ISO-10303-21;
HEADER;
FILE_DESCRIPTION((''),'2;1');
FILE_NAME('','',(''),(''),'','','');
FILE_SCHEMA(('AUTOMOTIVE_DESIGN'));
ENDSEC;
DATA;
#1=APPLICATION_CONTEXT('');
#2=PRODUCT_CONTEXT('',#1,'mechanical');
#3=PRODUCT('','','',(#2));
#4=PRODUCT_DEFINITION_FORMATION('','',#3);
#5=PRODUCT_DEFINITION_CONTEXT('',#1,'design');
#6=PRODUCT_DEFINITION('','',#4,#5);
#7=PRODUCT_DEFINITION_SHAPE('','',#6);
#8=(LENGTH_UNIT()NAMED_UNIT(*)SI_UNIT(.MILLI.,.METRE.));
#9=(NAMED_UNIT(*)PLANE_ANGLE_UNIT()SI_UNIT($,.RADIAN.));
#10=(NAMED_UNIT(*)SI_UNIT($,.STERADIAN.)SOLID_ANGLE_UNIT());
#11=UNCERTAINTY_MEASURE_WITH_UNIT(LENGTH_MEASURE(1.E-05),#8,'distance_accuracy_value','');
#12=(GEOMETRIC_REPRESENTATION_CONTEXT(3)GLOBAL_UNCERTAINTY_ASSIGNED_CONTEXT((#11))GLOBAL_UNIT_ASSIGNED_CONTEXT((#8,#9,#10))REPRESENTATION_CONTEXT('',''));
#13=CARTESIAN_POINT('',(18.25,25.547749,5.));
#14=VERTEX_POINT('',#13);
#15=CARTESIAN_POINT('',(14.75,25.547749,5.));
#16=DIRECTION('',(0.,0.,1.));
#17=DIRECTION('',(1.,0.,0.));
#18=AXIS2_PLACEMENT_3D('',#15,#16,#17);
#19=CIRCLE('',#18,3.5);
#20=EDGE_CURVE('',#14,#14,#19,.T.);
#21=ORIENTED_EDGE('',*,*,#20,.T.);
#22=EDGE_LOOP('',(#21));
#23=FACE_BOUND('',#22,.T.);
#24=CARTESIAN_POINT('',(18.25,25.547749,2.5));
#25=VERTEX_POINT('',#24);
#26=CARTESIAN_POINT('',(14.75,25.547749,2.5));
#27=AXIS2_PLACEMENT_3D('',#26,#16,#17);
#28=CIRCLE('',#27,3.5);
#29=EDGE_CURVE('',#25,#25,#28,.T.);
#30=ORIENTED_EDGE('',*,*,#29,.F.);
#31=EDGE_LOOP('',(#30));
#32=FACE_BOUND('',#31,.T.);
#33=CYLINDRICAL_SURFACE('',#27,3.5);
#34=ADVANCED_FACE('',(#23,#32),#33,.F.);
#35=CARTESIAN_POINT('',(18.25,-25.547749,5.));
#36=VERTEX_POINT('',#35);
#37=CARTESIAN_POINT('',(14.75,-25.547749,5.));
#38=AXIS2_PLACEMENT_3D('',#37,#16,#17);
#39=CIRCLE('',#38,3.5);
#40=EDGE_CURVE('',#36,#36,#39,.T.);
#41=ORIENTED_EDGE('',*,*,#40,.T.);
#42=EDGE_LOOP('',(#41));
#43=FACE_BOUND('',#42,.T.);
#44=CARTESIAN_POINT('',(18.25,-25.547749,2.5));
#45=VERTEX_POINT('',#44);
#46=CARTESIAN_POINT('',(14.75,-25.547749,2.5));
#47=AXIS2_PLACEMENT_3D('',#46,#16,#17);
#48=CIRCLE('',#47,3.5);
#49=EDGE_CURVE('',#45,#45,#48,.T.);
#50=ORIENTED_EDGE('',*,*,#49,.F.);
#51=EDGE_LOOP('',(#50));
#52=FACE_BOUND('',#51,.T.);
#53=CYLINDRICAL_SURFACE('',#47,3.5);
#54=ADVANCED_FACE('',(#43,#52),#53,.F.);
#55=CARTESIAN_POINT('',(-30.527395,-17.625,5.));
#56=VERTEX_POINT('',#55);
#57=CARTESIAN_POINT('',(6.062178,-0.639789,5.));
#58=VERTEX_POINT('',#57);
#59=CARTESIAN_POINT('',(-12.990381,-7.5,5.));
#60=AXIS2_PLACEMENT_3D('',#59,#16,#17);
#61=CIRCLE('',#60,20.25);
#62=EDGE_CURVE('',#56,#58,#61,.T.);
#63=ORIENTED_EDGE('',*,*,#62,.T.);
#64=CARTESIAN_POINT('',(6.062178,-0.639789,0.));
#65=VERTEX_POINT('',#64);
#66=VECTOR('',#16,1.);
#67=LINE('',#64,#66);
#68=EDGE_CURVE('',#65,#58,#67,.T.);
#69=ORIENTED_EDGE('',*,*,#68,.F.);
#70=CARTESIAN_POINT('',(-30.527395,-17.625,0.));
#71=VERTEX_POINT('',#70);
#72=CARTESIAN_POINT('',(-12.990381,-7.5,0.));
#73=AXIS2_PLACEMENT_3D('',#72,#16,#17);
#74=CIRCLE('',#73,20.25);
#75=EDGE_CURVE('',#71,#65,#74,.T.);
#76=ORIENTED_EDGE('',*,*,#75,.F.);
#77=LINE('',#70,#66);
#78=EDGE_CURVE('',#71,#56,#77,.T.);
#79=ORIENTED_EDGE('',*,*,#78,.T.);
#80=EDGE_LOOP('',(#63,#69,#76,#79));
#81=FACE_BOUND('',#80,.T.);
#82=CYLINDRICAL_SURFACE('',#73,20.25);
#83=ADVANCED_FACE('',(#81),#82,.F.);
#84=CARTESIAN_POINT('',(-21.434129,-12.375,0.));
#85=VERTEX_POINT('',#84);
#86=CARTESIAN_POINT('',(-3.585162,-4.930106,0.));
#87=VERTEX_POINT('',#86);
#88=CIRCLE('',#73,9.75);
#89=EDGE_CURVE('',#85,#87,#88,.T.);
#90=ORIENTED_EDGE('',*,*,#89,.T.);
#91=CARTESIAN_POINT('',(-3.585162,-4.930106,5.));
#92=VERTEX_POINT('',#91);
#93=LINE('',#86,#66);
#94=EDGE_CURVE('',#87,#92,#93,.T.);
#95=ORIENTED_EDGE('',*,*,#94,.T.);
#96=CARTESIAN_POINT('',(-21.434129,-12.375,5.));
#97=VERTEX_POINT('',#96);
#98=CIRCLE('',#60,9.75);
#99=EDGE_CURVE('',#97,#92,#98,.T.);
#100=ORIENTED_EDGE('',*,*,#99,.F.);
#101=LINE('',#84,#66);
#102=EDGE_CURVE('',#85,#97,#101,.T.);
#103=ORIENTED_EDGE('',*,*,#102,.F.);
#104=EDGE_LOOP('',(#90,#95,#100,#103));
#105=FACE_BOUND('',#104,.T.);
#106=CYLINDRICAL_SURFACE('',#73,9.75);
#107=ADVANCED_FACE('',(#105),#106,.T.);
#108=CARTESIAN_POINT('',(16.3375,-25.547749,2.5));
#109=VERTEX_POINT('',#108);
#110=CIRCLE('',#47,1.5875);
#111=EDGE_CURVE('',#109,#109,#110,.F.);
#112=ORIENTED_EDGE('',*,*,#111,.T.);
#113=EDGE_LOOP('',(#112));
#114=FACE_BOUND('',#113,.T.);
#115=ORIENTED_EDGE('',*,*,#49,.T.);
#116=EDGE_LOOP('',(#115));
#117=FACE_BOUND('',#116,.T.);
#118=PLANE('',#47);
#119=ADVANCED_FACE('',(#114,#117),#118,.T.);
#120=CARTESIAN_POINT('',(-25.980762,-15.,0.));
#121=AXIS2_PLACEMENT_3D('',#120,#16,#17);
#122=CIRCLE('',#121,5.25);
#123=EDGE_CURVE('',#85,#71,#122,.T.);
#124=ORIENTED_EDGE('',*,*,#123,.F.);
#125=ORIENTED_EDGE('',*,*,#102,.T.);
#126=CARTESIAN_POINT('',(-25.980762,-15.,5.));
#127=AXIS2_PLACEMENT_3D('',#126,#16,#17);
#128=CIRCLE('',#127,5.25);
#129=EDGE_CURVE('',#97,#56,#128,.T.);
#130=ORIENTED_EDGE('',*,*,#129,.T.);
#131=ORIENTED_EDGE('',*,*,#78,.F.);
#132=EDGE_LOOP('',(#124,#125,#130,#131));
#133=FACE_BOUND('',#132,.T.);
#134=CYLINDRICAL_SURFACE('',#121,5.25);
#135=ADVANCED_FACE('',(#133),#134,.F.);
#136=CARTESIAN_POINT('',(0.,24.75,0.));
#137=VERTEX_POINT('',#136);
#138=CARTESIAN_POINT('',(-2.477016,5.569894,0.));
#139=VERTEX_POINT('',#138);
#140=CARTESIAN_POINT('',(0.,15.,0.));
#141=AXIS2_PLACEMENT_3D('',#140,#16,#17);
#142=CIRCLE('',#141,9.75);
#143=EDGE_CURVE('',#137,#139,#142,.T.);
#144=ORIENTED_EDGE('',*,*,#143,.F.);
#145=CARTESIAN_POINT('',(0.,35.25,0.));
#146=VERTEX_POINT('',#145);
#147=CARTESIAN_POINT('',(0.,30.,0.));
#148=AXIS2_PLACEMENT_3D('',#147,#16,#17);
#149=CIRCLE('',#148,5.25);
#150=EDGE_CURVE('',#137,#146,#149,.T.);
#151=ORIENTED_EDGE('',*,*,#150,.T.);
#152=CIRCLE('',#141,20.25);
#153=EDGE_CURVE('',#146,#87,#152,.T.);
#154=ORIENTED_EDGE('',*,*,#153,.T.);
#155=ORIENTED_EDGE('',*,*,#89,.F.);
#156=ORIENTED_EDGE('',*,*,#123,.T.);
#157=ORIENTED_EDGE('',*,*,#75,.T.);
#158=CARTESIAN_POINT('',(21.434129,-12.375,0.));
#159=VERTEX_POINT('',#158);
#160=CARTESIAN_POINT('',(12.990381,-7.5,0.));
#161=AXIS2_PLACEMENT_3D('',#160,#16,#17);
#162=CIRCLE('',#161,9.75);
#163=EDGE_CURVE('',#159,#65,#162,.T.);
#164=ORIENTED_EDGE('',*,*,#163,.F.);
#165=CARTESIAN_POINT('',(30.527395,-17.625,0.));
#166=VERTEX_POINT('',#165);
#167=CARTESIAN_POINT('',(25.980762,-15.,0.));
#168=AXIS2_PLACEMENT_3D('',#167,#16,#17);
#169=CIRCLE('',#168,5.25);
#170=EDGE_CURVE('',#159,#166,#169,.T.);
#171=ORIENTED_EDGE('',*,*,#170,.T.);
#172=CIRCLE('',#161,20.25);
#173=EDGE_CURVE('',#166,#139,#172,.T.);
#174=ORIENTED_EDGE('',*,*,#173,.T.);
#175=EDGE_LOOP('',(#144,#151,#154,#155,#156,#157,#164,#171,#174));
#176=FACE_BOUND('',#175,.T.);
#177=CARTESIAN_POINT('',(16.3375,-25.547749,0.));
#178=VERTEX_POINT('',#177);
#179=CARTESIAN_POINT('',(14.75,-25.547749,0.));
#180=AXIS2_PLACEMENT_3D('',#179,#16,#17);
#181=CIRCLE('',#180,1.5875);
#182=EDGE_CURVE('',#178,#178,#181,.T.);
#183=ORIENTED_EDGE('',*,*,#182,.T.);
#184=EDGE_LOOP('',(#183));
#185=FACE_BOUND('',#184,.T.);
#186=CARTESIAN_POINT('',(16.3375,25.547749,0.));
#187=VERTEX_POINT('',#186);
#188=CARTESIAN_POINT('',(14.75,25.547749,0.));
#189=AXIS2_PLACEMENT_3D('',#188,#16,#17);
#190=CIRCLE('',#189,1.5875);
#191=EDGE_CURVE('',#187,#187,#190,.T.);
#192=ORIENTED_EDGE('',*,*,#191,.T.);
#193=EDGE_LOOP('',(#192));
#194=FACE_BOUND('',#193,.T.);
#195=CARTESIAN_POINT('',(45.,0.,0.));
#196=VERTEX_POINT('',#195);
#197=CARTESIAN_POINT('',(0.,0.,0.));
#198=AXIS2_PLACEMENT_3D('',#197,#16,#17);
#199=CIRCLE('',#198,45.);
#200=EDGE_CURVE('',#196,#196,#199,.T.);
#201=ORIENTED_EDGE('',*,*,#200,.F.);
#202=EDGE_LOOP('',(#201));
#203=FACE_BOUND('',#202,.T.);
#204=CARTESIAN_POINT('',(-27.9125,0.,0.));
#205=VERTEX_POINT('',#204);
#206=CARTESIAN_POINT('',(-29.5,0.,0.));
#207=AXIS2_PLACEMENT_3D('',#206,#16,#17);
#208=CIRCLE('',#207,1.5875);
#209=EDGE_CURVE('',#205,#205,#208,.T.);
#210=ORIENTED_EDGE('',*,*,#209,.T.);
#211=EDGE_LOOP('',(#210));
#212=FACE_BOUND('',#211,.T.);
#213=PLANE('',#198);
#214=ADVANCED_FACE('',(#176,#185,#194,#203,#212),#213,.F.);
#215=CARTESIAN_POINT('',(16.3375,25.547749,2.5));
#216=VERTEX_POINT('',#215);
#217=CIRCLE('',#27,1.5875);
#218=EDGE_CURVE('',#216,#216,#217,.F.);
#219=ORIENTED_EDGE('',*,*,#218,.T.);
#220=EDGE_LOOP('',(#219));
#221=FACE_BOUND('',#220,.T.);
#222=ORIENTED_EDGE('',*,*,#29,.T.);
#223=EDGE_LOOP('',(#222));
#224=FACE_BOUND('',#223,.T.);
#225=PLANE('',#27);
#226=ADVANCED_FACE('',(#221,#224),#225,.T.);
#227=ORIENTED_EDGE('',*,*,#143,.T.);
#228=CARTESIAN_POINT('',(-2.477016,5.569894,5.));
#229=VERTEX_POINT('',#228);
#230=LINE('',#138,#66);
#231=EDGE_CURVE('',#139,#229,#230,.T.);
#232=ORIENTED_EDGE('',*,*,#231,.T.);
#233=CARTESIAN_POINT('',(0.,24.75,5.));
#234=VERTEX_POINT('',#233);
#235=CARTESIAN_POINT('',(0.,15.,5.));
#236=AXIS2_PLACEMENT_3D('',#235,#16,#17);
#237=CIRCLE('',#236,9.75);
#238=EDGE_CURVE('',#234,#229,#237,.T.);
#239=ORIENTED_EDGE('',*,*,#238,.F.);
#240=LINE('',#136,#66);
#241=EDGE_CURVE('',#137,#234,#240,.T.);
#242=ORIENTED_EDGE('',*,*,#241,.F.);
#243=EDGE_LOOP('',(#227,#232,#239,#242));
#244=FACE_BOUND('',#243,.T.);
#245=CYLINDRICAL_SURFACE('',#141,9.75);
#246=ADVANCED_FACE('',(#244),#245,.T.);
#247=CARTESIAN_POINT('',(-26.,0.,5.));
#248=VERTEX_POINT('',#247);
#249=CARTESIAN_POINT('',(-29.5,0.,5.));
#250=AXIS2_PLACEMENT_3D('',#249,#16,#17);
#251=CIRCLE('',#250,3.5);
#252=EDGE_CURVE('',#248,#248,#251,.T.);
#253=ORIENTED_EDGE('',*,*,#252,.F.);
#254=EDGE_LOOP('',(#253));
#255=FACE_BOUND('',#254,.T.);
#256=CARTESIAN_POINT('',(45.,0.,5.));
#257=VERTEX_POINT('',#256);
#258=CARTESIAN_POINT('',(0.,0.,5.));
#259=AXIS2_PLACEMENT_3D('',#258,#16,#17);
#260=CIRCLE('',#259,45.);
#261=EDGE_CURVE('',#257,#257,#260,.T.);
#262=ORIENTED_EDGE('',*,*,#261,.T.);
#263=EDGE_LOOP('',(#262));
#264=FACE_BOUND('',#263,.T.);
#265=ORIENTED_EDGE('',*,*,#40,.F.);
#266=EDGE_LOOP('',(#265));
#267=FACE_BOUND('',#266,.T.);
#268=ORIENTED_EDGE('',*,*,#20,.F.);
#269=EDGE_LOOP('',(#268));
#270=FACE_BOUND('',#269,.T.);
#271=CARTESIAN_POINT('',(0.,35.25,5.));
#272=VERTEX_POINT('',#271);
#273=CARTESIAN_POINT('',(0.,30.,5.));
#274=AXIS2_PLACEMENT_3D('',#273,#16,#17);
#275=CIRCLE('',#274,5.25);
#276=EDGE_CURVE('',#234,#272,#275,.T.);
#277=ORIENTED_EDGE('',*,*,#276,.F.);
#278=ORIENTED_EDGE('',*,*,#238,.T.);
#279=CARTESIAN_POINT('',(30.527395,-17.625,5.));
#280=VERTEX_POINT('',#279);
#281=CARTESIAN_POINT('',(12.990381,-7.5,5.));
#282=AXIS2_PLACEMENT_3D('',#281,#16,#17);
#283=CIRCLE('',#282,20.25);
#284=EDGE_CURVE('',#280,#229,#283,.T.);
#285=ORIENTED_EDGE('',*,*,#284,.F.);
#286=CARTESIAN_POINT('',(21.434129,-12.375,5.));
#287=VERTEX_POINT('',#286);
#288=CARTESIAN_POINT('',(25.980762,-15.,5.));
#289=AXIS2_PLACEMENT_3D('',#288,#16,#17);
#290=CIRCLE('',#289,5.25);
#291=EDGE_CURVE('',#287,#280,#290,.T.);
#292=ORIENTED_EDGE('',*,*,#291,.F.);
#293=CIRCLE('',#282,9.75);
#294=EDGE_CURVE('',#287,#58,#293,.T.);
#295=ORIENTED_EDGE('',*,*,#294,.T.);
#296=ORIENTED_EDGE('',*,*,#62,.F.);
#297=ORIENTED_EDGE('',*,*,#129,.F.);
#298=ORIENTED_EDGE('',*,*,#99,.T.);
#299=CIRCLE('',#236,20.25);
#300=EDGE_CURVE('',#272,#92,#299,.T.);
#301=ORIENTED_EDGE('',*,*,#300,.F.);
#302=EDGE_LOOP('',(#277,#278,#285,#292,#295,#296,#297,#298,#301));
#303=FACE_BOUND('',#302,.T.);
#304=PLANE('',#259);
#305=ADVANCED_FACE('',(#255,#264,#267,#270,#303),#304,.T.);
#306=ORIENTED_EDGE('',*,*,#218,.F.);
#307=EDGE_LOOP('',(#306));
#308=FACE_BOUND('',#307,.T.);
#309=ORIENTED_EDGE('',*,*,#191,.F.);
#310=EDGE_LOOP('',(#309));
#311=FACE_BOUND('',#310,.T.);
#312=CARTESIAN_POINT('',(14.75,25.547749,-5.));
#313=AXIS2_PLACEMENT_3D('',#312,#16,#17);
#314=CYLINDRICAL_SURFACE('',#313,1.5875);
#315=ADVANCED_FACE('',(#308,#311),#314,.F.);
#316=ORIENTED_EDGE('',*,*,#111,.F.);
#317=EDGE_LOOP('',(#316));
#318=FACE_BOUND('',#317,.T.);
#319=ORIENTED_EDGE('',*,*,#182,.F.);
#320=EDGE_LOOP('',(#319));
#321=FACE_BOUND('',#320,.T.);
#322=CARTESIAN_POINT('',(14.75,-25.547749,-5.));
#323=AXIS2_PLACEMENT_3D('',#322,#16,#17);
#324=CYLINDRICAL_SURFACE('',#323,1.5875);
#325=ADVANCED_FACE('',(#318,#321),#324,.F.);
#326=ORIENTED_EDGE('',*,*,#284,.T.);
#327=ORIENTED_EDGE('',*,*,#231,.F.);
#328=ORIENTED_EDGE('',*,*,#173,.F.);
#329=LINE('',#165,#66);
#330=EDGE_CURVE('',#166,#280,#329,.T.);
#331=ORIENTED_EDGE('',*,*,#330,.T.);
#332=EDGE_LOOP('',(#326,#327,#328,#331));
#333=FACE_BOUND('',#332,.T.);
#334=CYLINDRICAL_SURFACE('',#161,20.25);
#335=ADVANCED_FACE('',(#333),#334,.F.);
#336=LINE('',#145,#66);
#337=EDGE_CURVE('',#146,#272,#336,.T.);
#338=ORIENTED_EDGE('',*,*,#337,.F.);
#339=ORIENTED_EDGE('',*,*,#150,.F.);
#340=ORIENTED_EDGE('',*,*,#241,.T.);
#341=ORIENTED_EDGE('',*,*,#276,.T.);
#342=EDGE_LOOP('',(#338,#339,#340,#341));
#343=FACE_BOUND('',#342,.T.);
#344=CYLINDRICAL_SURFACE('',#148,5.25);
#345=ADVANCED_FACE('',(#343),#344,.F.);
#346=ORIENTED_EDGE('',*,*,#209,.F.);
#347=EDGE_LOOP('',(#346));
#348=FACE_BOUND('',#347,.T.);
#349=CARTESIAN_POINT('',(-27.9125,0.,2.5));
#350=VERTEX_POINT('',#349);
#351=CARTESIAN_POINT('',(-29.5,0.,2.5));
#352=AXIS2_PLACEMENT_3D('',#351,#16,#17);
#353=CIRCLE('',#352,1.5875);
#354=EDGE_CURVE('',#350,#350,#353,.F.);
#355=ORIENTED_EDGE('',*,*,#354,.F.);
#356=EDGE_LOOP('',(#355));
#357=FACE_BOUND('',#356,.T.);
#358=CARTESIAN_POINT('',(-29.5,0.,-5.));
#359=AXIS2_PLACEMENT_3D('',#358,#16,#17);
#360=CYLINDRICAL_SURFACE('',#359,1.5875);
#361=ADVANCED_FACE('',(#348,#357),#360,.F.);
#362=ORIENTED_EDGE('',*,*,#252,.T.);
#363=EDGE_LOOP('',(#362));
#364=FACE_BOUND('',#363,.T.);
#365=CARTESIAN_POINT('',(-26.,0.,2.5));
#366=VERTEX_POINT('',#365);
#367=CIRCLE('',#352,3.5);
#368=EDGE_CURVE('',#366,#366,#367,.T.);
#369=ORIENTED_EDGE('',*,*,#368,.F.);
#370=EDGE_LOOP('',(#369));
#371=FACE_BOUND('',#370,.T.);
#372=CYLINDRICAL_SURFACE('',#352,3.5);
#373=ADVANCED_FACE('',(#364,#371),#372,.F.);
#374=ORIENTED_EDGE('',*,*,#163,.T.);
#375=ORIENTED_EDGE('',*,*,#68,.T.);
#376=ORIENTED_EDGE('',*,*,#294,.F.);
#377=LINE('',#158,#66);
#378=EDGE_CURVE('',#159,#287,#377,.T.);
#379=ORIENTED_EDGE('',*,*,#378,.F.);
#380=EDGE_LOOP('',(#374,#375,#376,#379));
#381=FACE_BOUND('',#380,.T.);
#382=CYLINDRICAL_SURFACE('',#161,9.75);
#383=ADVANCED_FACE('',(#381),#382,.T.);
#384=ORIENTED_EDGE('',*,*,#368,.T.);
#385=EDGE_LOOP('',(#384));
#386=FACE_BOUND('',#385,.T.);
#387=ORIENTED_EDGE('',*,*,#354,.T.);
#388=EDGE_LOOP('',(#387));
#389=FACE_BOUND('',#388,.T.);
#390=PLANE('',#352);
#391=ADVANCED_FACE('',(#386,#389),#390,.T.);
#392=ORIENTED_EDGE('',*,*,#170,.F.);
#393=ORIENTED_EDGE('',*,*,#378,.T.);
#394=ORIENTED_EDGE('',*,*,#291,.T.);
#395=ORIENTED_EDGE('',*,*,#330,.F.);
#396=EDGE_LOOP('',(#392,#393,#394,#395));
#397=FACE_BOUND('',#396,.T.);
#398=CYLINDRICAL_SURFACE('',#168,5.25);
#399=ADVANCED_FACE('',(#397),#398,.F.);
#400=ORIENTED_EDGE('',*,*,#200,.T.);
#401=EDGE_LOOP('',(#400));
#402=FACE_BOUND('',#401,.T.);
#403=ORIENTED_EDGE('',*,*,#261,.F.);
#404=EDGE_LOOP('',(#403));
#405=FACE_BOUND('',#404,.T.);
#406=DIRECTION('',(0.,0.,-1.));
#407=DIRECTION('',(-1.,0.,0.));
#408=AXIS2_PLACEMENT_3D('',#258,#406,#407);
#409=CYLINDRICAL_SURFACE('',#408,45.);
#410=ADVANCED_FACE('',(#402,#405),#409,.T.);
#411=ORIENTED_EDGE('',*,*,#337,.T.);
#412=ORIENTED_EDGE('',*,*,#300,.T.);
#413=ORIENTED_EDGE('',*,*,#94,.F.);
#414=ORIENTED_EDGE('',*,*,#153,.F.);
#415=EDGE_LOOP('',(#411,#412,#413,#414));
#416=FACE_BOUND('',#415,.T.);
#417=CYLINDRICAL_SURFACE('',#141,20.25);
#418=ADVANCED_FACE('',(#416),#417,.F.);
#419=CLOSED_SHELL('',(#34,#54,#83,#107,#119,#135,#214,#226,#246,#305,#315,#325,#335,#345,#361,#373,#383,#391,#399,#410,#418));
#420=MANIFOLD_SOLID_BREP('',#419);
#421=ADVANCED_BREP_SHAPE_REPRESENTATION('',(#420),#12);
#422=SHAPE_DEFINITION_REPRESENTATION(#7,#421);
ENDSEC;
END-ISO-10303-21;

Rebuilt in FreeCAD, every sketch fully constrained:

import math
import FreeCAD as App
import Part
import Sketcher

V = App.Vector

doc = App.newDocument("Part")
body = doc.addObject("PartDesign::Body", "Body")

# Sketch on XY plane
sketch1 = body.newObject("Sketcher::SketchObject", "Sketch")
sketch1.AttachmentSupport = (doc.getObject("XY_Plane"), [""])
sketch1.MapMode = "FlatFace"
sketch1.addGeometry(Part.Circle(V(0, 0, 0), V(0, 0, 1), 45), False)
sketch1.addConstraint([
    Sketcher.Constraint("Coincident", 0, 3, -1, 1),
    Sketcher.Constraint("Diameter", 0, 90.0),
])
pad1 = body.newObject("PartDesign::Pad", "Pad")
pad1.Profile = sketch1
pad1.Length = 5

# Sketch on XY plane
sketch2 = body.newObject("Sketcher::SketchObject", "Sketch001")
sketch2.AttachmentSupport = (doc.getObject("XY_Plane"), [""])
sketch2.MapMode = "FlatFace"
sketch2.AttachmentOffset = App.Placement(V(0, 0, 5), App.Rotation())
sketch2.addGeometry([
    Part.ArcOfCircle(Part.Circle(V(-13, -8, 0), V(0, 0, 1), 20), math.radians(-150), math.radians(20)),  # 0
    Part.ArcOfCircle(Part.Circle(V(13, -8, 0), V(0, 0, 1), 10), math.radians(-30), math.radians(135)),  # 1
    Part.ArcOfCircle(Part.Circle(V(26, -15, 0), V(0, 0, 1), 5), math.radians(150), math.radians(330)),  # 2
    Part.ArcOfCircle(Part.Circle(V(13, -8, 0), V(0, 0, 1), 20), math.radians(-30), math.radians(140)),  # 3
    Part.ArcOfCircle(Part.Circle(V(0, 15, 0), V(0, 0, 1), 10), math.radians(90), math.radians(255)),  # 4
    Part.ArcOfCircle(Part.Circle(V(0, 30, 0), V(0, 0, 1), 5), math.radians(-90), math.radians(90)),  # 5
    Part.ArcOfCircle(Part.Circle(V(0, 15, 0), V(0, 0, 1), 20), math.radians(90), math.radians(260)),  # 6
    Part.ArcOfCircle(Part.Circle(V(-13, -8, 0), V(0, 0, 1), 10), math.radians(-150), math.radians(15)),  # 7
    Part.ArcOfCircle(Part.Circle(V(-26, -15, 0), V(0, 0, 1), 5), math.radians(30), math.radians(210)),  # 8
], False)
sketch2.addConstraint([
    Sketcher.Constraint("Coincident", 0, 2, 1, 2),
    Sketcher.Constraint("Tangent", 1, 1, 2, 1),
    Sketcher.Constraint("Tangent", 2, 2, 3, 1),
    Sketcher.Constraint("Coincident", 3, 2, 4, 2),
    Sketcher.Constraint("Tangent", 4, 1, 5, 1),
    Sketcher.Constraint("Tangent", 5, 2, 6, 1),
    Sketcher.Constraint("Coincident", 6, 2, 7, 2),
    Sketcher.Constraint("Tangent", 7, 1, 8, 1),
    Sketcher.Constraint("Tangent", 8, 2, 0, 1),
    Sketcher.Constraint("Coincident", 3, 3, 1, 3),
    Sketcher.Constraint("Coincident", 6, 3, 4, 3),
    Sketcher.Constraint("Coincident", 7, 3, 0, 3),
    Sketcher.Constraint("Equal", 0, 3),
    Sketcher.Constraint("Equal", 1, 4),
    Sketcher.Constraint("Equal", 2, 5),
    Sketcher.Constraint("Equal", 4, 7),
    Sketcher.Constraint("Symmetric", 0, 3, 1, 3, -2),
    Sketcher.Constraint("PointOnObject", 4, 3, -2),
    Sketcher.Constraint("PointOnObject", 5, 3, -2),
    Sketcher.Constraint("Horizontal", 2, 3, 8, 3),
    Sketcher.Constraint("Radius", 0, 20.25),
    Sketcher.Constraint("Radius", 1, 9.75),
    Sketcher.Constraint("DistanceY", 2, 3, -1, 1, 15.0),
    Sketcher.Constraint("DistanceY", -1, 1, 4, 3, 15.0),
    Sketcher.Constraint("DistanceY", 0, 3, -1, 1, 7.5),
    Sketcher.Constraint("DistanceY", 6, 2, 3, 2, 10.5),
])
pocket1 = body.newObject("PartDesign::Pocket", "Pocket")
pocket1.Profile = sketch2
pocket1.Type = "ThroughAll"

# Sketch on XY plane
sketch3 = body.newObject("Sketcher::SketchObject", "Sketch002")
sketch3.AttachmentSupport = (doc.getObject("XY_Plane"), [""])
sketch3.MapMode = "FlatFace"
sketch3.AttachmentOffset = App.Placement(V(0, 0, 5), App.Rotation())
sketch3.addGeometry([
    Part.Circle(V(-29.5, 0, 0), V(0, 0, 1), 1.6),
    Part.Circle(V(14.8, 25.5, 0), V(0, 0, 1), 1.6),
    Part.Circle(V(14.8, -25.5, 0), V(0, 0, 1), 1.6),
], False)
sketch3.addConstraint([
    Sketcher.Constraint("Equal", 0, 1),
    Sketcher.Constraint("Equal", 1, 2),
    Sketcher.Constraint("Symmetric", 1, 3, 2, 3, -1),
    Sketcher.Constraint("PointOnObject", 0, 3, -1),
    Sketcher.Constraint("Diameter", 0, 3.175),
    Sketcher.Constraint("DistanceX", 0, 3, -1, 1, 29.5),
    Sketcher.Constraint("DistanceX", -1, 1, 1, 3, 14.75),
    Sketcher.Constraint("DistanceY", 2, 3, 1, 3, 51.095499),
])
pocket2 = body.newObject("PartDesign::Pocket", "Pocket001")
pocket2.Profile = sketch3
pocket2.Length = 10

# Sketch on XY plane
sketch4 = body.newObject("Sketcher::SketchObject", "Sketch003")
sketch4.AttachmentSupport = (doc.getObject("XY_Plane"), [""])
sketch4.MapMode = "FlatFace"
sketch4.AttachmentOffset = App.Placement(V(0, 0, 5), App.Rotation())
sketch4.addGeometry([
    Part.Circle(V(-29.5, 0, 0), V(0, 0, 1), 3.5),
    Part.Circle(V(14.8, -25.5, 0), V(0, 0, 1), 3.5),
    Part.Circle(V(14.8, 25.5, 0), V(0, 0, 1), 3.5),
], False)
sketch4.addConstraint([
    Sketcher.Constraint("Equal", 0, 1),
    Sketcher.Constraint("Equal", 1, 2),
    Sketcher.Constraint("Symmetric", 1, 3, 2, 3, -1),
    Sketcher.Constraint("PointOnObject", 0, 3, -1),
    Sketcher.Constraint("Diameter", 0, 7.0),
    Sketcher.Constraint("DistanceX", 0, 3, -1, 1, 29.5),
    Sketcher.Constraint("DistanceX", -1, 1, 1, 3, 14.75),
    Sketcher.Constraint("DistanceY", 1, 3, 2, 3, 51.095499),
])
pocket3 = body.newObject("PartDesign::Pocket", "Pocket002")
pocket3.Profile = sketch4
pocket3.Length = 2.5

doc.recompute()
